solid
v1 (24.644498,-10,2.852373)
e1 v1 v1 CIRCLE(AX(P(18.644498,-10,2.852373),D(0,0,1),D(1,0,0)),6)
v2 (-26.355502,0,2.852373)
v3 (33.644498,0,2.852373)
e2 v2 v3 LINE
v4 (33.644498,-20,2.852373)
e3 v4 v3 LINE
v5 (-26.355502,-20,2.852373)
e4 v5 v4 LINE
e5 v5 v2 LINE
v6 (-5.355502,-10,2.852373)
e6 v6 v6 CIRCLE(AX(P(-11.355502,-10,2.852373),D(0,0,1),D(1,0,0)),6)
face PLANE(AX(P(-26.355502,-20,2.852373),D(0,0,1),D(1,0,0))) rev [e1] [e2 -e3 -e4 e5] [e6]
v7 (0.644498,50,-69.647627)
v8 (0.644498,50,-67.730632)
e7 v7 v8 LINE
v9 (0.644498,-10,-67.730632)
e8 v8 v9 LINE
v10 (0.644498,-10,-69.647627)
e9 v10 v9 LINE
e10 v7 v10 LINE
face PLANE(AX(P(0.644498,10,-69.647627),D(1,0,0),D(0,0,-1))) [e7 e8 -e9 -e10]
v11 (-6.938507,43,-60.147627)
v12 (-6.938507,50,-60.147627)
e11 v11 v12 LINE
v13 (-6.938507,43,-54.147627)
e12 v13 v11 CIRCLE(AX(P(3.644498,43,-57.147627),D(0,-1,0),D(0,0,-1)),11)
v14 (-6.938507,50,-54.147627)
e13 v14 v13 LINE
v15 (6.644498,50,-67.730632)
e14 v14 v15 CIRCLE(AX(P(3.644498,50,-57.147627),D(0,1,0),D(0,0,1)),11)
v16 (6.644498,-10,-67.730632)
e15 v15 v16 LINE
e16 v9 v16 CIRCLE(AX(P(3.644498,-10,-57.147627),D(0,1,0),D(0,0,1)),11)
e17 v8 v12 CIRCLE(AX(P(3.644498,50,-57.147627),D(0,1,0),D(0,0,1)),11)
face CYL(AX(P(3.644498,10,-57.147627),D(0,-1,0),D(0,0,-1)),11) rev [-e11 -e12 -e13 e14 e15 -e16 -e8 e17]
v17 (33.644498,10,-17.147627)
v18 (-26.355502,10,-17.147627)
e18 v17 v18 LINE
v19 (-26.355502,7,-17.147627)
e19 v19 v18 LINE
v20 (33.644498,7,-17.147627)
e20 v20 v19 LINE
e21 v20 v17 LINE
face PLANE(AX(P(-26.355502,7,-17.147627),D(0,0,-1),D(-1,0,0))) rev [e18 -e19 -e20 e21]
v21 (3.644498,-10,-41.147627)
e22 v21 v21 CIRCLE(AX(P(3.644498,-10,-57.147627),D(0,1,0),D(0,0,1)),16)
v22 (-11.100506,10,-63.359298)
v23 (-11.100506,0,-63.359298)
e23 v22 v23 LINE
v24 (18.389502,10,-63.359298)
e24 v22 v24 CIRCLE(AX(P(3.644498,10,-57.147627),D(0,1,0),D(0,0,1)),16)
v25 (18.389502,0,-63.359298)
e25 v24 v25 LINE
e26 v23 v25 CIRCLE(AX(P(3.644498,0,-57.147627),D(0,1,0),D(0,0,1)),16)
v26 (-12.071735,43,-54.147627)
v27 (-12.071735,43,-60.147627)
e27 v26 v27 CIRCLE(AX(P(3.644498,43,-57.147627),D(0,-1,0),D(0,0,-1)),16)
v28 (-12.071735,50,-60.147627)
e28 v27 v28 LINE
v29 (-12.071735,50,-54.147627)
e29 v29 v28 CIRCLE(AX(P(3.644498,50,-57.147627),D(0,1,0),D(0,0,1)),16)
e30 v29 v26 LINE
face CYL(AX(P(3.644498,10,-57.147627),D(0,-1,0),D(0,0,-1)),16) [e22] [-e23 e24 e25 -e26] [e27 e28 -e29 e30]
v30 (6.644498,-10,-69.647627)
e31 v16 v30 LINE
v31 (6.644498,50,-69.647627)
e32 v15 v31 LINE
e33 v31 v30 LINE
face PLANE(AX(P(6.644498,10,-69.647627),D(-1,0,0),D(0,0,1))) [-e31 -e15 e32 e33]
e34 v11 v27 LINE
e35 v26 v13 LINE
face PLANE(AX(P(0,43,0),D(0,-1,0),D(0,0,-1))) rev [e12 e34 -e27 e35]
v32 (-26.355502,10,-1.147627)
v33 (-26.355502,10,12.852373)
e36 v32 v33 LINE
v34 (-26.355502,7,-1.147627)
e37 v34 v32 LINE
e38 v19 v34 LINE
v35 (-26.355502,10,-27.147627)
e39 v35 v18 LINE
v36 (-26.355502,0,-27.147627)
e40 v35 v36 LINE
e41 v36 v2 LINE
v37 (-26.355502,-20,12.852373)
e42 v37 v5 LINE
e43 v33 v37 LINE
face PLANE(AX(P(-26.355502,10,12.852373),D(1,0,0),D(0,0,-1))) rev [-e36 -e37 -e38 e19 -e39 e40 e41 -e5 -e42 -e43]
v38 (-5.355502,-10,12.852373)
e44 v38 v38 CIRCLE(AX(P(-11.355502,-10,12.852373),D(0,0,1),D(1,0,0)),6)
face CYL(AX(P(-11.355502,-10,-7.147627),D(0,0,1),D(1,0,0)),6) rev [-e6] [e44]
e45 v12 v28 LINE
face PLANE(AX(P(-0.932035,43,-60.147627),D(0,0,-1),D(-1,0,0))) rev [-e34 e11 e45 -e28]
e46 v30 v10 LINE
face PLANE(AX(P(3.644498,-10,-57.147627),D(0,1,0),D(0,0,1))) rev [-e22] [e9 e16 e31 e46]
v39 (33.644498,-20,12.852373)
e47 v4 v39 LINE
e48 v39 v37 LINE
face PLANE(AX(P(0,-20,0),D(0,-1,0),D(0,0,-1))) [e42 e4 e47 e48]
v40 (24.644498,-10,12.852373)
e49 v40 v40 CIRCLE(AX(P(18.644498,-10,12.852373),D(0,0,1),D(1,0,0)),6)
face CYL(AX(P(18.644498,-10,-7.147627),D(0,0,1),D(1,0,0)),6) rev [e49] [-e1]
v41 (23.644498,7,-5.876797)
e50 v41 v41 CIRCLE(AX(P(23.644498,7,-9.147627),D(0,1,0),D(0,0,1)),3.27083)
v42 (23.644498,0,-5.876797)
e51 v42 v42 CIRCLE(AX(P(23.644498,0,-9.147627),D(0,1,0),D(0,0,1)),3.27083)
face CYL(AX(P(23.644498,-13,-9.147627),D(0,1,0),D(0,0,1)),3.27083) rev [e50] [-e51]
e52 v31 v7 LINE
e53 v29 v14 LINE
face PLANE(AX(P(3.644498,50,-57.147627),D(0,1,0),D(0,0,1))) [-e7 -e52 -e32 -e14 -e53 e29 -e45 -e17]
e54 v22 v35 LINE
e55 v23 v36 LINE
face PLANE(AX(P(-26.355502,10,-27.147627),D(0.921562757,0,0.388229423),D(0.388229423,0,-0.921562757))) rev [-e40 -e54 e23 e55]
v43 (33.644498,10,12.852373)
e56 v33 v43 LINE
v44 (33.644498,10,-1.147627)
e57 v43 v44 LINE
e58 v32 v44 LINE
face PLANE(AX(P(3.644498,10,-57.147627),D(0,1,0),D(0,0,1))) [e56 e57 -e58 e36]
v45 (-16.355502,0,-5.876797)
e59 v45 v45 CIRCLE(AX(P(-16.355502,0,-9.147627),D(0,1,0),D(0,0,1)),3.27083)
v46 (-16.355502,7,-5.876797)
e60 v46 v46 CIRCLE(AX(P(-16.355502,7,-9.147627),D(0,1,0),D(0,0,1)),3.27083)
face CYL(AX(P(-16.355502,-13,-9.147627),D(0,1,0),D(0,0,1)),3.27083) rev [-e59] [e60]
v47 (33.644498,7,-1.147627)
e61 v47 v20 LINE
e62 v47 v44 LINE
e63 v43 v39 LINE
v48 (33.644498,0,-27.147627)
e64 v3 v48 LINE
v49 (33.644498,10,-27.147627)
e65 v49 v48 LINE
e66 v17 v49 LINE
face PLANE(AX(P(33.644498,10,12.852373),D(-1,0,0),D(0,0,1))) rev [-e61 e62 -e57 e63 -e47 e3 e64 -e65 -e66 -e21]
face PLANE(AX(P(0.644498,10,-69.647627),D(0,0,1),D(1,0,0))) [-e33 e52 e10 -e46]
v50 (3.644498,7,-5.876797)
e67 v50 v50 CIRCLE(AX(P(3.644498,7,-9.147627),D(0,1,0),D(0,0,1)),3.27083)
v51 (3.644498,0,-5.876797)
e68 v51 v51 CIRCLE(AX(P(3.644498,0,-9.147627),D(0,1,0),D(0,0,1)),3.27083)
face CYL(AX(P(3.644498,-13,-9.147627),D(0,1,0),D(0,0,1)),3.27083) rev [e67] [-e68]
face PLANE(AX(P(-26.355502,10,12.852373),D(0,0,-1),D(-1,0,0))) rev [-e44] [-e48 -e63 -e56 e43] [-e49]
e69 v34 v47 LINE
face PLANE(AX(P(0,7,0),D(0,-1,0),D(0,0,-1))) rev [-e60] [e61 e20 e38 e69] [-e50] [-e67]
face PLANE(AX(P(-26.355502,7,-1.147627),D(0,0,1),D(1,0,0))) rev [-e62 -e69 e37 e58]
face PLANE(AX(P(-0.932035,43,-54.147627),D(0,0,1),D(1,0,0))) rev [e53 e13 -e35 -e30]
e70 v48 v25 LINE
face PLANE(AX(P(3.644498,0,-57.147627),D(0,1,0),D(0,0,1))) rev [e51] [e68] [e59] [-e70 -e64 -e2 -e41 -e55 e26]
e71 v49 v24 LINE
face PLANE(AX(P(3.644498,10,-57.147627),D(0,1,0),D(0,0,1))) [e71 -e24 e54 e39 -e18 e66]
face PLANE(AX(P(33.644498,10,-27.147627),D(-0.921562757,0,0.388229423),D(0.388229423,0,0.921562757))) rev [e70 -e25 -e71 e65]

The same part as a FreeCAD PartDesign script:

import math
import FreeCAD as App
import Part
import Sketcher

V = App.Vector

doc = App.newDocument("Part")
body = doc.addObject("PartDesign::Body", "Body")

# Sketch on XZ plane
sketch1 = doc.addObject("Sketcher::SketchObject", "Sketch")
body.addObject(sketch1)
sketch1.AttachmentSupport = (doc.XZ_Plane, [""])
sketch1.MapMode = "FlatFace"
sketch1.addGeometry(Part.LineSegment(V(-26.4, 12.9, 0), V(33.6, 12.9, 0)), False)
sketch1.addGeometry(Part.LineSegment(V(33.6, 12.9, 0), V(33.6, -27.1, 0)), False)
sketch1.addGeometry(Part.LineSegment(V(33.6, -27.1, 0), V(18.4, -63.4, 0)), False)
sketch1.addGeometry(Part.ArcOfCircle(Part.Circle(V(3.6, -57.1, 0), V(0, 0, 1), 16), math.radians(-157), math.radians(-23)), False)
sketch1.addGeometry(Part.LineSegment(V(-11.1, -63.4, 0), V(-26.4, -27.1, 0)), False)
sketch1.addGeometry(Part.LineSegment(V(-26.4, -27.1, 0), V(-26.4, 12.9, 0)), False)
sketch1.addGeometry(Part.LineSegment(V(0.6, -67.7, 0), V(0.6, -69.6, 0)), False)
sketch1.addGeometry(Part.LineSegment(V(0.6, -69.6, 0), V(6.6, -69.6, 0)), False)
sketch1.addGeometry(Part.LineSegment(V(6.6, -69.6, 0), V(6.6, -67.7, 0)), False)
sketch1.addGeometry(Part.ArcOfCircle(Part.Circle(V(3.6, -57.1, 0), V(0, 0, 1), 11), math.radians(-74), math.radians(254)), False)
sketch1.addConstraint(Sketcher.Constraint("Coincident", 0, 2, 1, 1))
sketch1.addConstraint(Sketcher.Constraint("Coincident", 1, 2, 2, 1))
sketch1.addConstraint(Sketcher.Constraint("Tangent", 2, 2, 3, 2))
sketch1.addConstraint(Sketcher.Constraint("Tangent", 3, 1, 4, 1))
sketch1.addConstraint(Sketcher.Constraint("Coincident", 4, 2, 5, 1))
sketch1.addConstraint(Sketcher.Constraint("Coincident", 5, 2, 0, 1))
sketch1.addConstraint(Sketcher.Constraint("Coincident", 6, 2, 7, 1))
sketch1.addConstraint(Sketcher.Constraint("Coincident", 7, 2, 8, 1))
sketch1.addConstraint(Sketcher.Constraint("Coincident", 8, 2, 9, 1))
sketch1.addConstraint(Sketcher.Constraint("Coincident", 9, 2, 6, 1))
sketch1.addConstraint(Sketcher.Constraint("Horizontal", 0))
sketch1.addConstraint(Sketcher.Constraint("Vertical", 1))
sketch1.addConstraint(Sketcher.Constraint("Vertical", 5))
sketch1.addConstraint(Sketcher.Constraint("Vertical", 6))
sketch1.addConstraint(Sketcher.Constraint("Horizontal", 7))
sketch1.addConstraint(Sketcher.Constraint("Vertical", 8))
sketch1.addConstraint(Sketcher.Constraint("Coincident", 9, 3, 3, 3))
sketch1.addConstraint(Sketcher.Constraint("Horizontal", 2, 2, 3, 1))
sketch1.addConstraint(Sketcher.Constraint("Horizontal", 1, 2, 4, 2))
sketch1.addConstraint(Sketcher.Constraint("Horizontal", 8, 2, 9, 2))
sketch1.addConstraint(Sketcher.Constraint("Radius", 3, 16.0))
sketch1.addConstraint(Sketcher.Constraint("Radius", 9, 11.0))
sketch1.addConstraint(Sketcher.Constraint("DistanceX", 0, 1, 0, 2, 60.0))
sketch1.addConstraint(Sketcher.Constraint("DistanceX", 7, 1, 7, 2, 6.0))
sketch1.addConstraint(Sketcher.Constraint("DistanceY", 1, 2, 1, 1, 40.0))
sketch1.addConstraint(Sketcher.Constraint("DistanceY", 3, 3, 0, 2, 70.0))
sketch1.addConstraint(Sketcher.Constraint("DistanceY", 6, 2, 3, 3, 12.5))
sketch1.addConstraint(Sketcher.Constraint("DistanceX", -1, 1, 3, 3, 3.644498))
sketch1.addConstraint(Sketcher.Constraint("DistanceY", 3, 3, -1, 1, 57.147627))
pad1 = doc.addObject("PartDesign::Pad", "Pad")
body.addObject(pad1)
pad1.Profile = sketch1
pad1.Length = 10
pad1.Reversed = True

# Sketch on XZ plane
sketch2 = doc.addObject("Sketcher::SketchObject", "Sketch001")
body.addObject(sketch2)
sketch2.AttachmentSupport = (doc.XZ_Plane, [""])
sketch2.MapMode = "FlatFace"
sketch2.addGeometry(Part.LineSegment(V(-26, 13, 0), V(-26, 3, 0)), False)
sketch2.addGeometry(Part.LineSegment(V(-26, 3, 0), V(34, 3, 0)), False)
sketch2.addGeometry(Part.LineSegment(V(34, 3, 0), V(34, 13, 0)), False)
sketch2.addGeometry(Part.LineSegment(V(34, 13, 0), V(-26, 13, 0)), False)
sketch2.addConstraint(Sketcher.Constraint("Coincident", 0, 2, 1, 1))
sketch2.addConstraint(Sketcher.Constraint("Coincident", 1, 2, 2, 1))
sketch2.addConstraint(Sketcher.Constraint("Coincident", 2, 2, 3, 1))
sketch2.addConstraint(Sketcher.Constraint("Coincident", 3, 2, 0, 1))
sketch2.addConstraint(Sketcher.Constraint("Vertical", 0))
sketch2.addConstraint(Sketcher.Constraint("Horizontal", 1))
sketch2.addConstraint(Sketcher.Constraint("Vertical", 2))
sketch2.addConstraint(Sketcher.Constraint("Horizontal", 3))
sketch2.addConstraint(Sketcher.Constraint("DistanceX", 1, 1, 1, 2, 60.0))
sketch2.addConstraint(Sketcher.Constraint("DistanceY", 0, 2, 0, 1, 10.0))
sketch2.addConstraint(Sketcher.Constraint("DistanceX", 0, 2, -1, 1, 26.355502))
sketch2.addConstraint(Sketcher.Constraint("DistanceY", -1, 1, 0, 2, 2.852373))
pad2 = doc.addObject("PartDesign::Pad", "Pad001")
body.addObject(pad2)
pad2.Profile = sketch2
pad2.Length = 20

# Sketch on XY plane
sketch3 = doc.addObject("Sketcher::SketchObject", "Sketch002")
body.addObject(sketch3)
sketch3.AttachmentSupport = (doc.XY_Plane, [""])
sketch3.MapMode = "FlatFace"
sketch3.AttachmentOffset = App.Placement(V(0, 0, 12.852373), App.Rotation())
sketch3.addGeometry(Part.Circle(V(-11, -10, 0), V(0, 0, 1), 6), False)
sketch3.addGeometry(Part.Circle(V(19, -10, 0), V(0, 0, 1), 6), False)
sketch3.addConstraint(Sketcher.Constraint("Equal", 0, 1))
sketch3.addConstraint(Sketcher.Constraint("Horizontal", 0, 3, 1, 3))
sketch3.addConstraint(Sketcher.Constraint("Diameter", 0, 12.0))
sketch3.addConstraint(Sketcher.Constraint("DistanceY", 0, 3, -1, 1, 10.0))
sketch3.addConstraint(Sketcher.Constraint("DistanceX", 0, 3, 1, 3, 30.0))
sketch3.addConstraint(Sketcher.Constraint("DistanceX", 0, 3, -1, 1, 11.355502))
pocket1 = doc.addObject("PartDesign::Pocket", "Pocket")
body.addObject(pocket1)
pocket1.Profile = sketch3
pocket1.Length = 20

# Sketch on XZ plane
sketch4 = doc.addObject("Sketcher::SketchObject", "Sketch003")
body.addObject(sketch4)
sketch4.AttachmentSupport = (doc.XZ_Plane, [""])
sketch4.MapMode = "FlatFace"
sketch4.AttachmentOffset = App.Placement(V(0, 0, -10), App.Rotation())
sketch4.addGeometry(Part.LineSegment(V(-26, -17, 0), V(-26, -1, 0)), False)
sketch4.addGeometry(Part.LineSegment(V(-26, -1, 0), V(34, -1, 0)), False)
sketch4.addGeometry(Part.LineSegment(V(34, -1, 0), V(34, -17, 0)), False)
sketch4.addGeometry(Part.LineSegment(V(34, -17, 0), V(-26, -17, 0)), False)
sketch4.addConstraint(Sketcher.Constraint("Coincident", 0, 2, 1, 1))
sketch4.addConstraint(Sketcher.Constraint("Coincident", 1, 2, 2, 1))
sketch4.addConstraint(Sketcher.Constraint("Coincident", 2, 2, 3, 1))
sketch4.addConstraint(Sketcher.Constraint("Coincident", 3, 2, 0, 1))
sketch4.addConstraint(Sketcher.Constraint("Vertical", 0))
sketch4.addConstraint(Sketcher.Constraint("Horizontal", 1))
sketch4.addConstraint(Sketcher.Constraint("Vertical", 2))
sketch4.addConstraint(Sketcher.Constraint("Horizontal", 3))
sketch4.addConstraint(Sketcher.Constraint("DistanceX", 1, 1, 1, 2, 60.0))
sketch4.addConstraint(Sketcher.Constraint("DistanceY", 0, 1, 0, 2, 16.0))
sketch4.addConstraint(Sketcher.Constraint("DistanceX", 0, 2, -1, 1, 26.355502))
sketch4.addConstraint(Sketcher.Constraint("DistanceY", 0, 2, -1, 1, 1.147627))
pocket2 = doc.addObject("PartDesign::Pocket", "Pocket001")
body.addObject(pocket2)
pocket2.Profile = sketch4
pocket2.Length = 3
pocket2.Reversed = True

# Sketch on XZ plane
sketch5 = doc.addObject("Sketcher::SketchObject", "Sketch004")
body.addObject(sketch5)
sketch5.AttachmentSupport = (doc.XZ_Plane, [""])
sketch5.MapMode = "FlatFace"
sketch5.AttachmentOffset = App.Placement(V(0, 0, -7), App.Rotation())
sketch5.addGeometry(Part.Circle(V(-16.4, -9.1, 0), V(0, 0, 1), 3.3), False)
sketch5.addGeometry(Part.Circle(V(3.6, -9.1, 0), V(0, 0, 1), 3.3), False)
sketch5.addGeometry(Part.Circle(V(23.6, -9.1, 0), V(0, 0, 1), 3.3), False)
sketch5.addConstraint(Sketcher.Constraint("Equal", 0, 1))
sketch5.addConstraint(Sketcher.Constraint("Equal", 1, 2))
sketch5.addConstraint(Sketcher.Constraint("Horizontal", 0, 3, 1, 3))
sketch5.addConstraint(Sketcher.Constraint("Horizontal", 1, 3, 2, 3))
sketch5.addConstraint(Sketcher.Constraint("DistanceX", 0, 3, 1, 3, 20.0))
sketch5.addConstraint(Sketcher.Constraint("DistanceX", 1, 3, 2, 3, 20.0))
sketch5.addConstraint(Sketcher.Constraint("Diameter", 0, 6.54166))
sketch5.addConstraint(Sketcher.Constraint("DistanceX", 0, 3, -1, 1, 16.355502))
sketch5.addConstraint(Sketcher.Constraint("DistanceY", 0, 3, -1, 1, 9.147627))
pocket3 = doc.addObject("PartDesign::Pocket", "Pocket002")
body.addObject(pocket3)
pocket3.Profile = sketch5
pocket3.Length = 20
pocket3.Reversed = True

# Sketch on XZ plane
sketch6 = doc.addObject("Sketcher::SketchObject", "Sketch005")
body.addObject(sketch6)
sketch6.AttachmentSupport = (doc.XZ_Plane, [""])
sketch6.MapMode = "FlatFace"
sketch6.AttachmentOffset = App.Placement(V(0, 0, -10), App.Rotation())
sketch6.addGeometry(Part.Circle(V(3.6, -57.1, 0), V(0, 0, 1), 16), False)
sketch6.addGeometry(Part.LineSegment(V(6.6, -69.6, 0), V(6.6, -67.7, 0)), False)
sketch6.addGeometry(Part.ArcOfCircle(Part.Circle(V(3.6, -57.1, 0), V(0, 0, 1), 11), math.radians(-74), math.radians(254)), False)
sketch6.addGeometry(Part.LineSegment(V(0.6, -67.7, 0), V(0.6, -69.6, 0)), False)
sketch6.addGeometry(Part.LineSegment(V(0.6, -69.6, 0), V(6.6, -69.6, 0)), False)
sketch6.addConstraint(Sketcher.Constraint("Coincident", 1, 2, 2, 1))
sketch6.addConstraint(Sketcher.Constraint("Coincident", 2, 2, 3, 1))
sketch6.addConstraint(Sketcher.Constraint("Coincident", 3, 2, 4, 1))
sketch6.addConstraint(Sketcher.Constraint("Coincident", 4, 2, 1, 1))
sketch6.addConstraint(Sketcher.Constraint("Vertical", 1))
sketch6.addConstraint(Sketcher.Constraint("Vertical", 3))
sketch6.addConstraint(Sketcher.Constraint("Horizontal", 4))
sketch6.addConstraint(Sketcher.Constraint("Coincident", 2, 3, 0, 3))
sketch6.addConstraint(Sketcher.Constraint("Horizontal", 1, 2, 2, 2))
sketch6.addConstraint(Sketcher.Constraint("Diameter", 0, 32.0))
sketch6.addConstraint(Sketcher.Constraint("Radius", 2, 11.0))
sketch6.addConstraint(Sketcher.Constraint("DistanceX", 4, 1, 4, 2, 6.0))
sketch6.addConstraint(Sketcher.Constraint("DistanceY", 3, 2, 0, 3, 12.5))
sketch6.addConstraint(Sketcher.Constraint("DistanceX", -1, 1, 0, 3, 3.644498))
sketch6.addConstraint(Sketcher.Constraint("DistanceY", 0, 3, -1, 1, 57.147627))
pad3 = doc.addObject("PartDesign::Pad", "Pad002")
body.addObject(pad3)
pad3.Profile = sketch6
pad3.Type = "TwoLengths"
pad3.Length = 40
pad3.Length2 = 20
pad3.Reversed = True

# Sketch on XZ plane
sketch7 = doc.addObject("Sketcher::SketchObject", "Sketch006")
body.addObject(sketch7)
sketch7.AttachmentSupport = (doc.XZ_Plane, [""])
sketch7.MapMode = "FlatFace"
sketch7.AttachmentOffset = App.Placement(V(0, 0, -50), App.Rotation())
sketch7.addGeometry(Part.LineSegment(V(-14, -60, 0), V(-14, -54, 0)), False)
sketch7.addGeometry(Part.LineSegment(V(-14, -54, 0), V(-1, -54, 0)), False)
sketch7.addGeometry(Part.LineSegment(V(-1, -54, 0), V(-1, -60, 0)), False)
sketch7.addGeometry(Part.LineSegment(V(-1, -60, 0), V(-14, -60, 0)), False)
sketch7.addConstraint(Sketcher.Constraint("Coincident", 0, 2, 1, 1))
sketch7.addConstraint(Sketcher.Constraint("Coincident", 1, 2, 2, 1))
sketch7.addConstraint(Sketcher.Constraint("Coincident", 2, 2, 3, 1))
sketch7.addConstraint(Sketcher.Constraint("Coincident", 3, 2, 0, 1))
sketch7.addConstraint(Sketcher.Constraint("Vertical", 0))
sketch7.addConstraint(Sketcher.Constraint("Horizontal", 1))
sketch7.addConstraint(Sketcher.Constraint("Vertical", 2))
sketch7.addConstraint(Sketcher.Constraint("Horizontal", 3))
sketch7.addConstraint(Sketcher.Constraint("DistanceY", 0, 1, 0, 2, 6.0))
sketch7.addConstraint(Sketcher.Constraint("DistanceX", 1, 1, 1, 2, 12.846934))
sketch7.addConstraint(Sketcher.Constraint("DistanceX", 0, 2, -1, 1, 13.778969))
sketch7.addConstraint(Sketcher.Constraint("DistanceY", 0, 2, -1, 1, 54.147627))
pocket4 = doc.addObject("PartDesign::Pocket", "Pocket003")
body.addObject(pocket4)
pocket4.Profile = sketch7
pocket4.Length = 7
pocket4.Reversed = True

doc.recompute()
